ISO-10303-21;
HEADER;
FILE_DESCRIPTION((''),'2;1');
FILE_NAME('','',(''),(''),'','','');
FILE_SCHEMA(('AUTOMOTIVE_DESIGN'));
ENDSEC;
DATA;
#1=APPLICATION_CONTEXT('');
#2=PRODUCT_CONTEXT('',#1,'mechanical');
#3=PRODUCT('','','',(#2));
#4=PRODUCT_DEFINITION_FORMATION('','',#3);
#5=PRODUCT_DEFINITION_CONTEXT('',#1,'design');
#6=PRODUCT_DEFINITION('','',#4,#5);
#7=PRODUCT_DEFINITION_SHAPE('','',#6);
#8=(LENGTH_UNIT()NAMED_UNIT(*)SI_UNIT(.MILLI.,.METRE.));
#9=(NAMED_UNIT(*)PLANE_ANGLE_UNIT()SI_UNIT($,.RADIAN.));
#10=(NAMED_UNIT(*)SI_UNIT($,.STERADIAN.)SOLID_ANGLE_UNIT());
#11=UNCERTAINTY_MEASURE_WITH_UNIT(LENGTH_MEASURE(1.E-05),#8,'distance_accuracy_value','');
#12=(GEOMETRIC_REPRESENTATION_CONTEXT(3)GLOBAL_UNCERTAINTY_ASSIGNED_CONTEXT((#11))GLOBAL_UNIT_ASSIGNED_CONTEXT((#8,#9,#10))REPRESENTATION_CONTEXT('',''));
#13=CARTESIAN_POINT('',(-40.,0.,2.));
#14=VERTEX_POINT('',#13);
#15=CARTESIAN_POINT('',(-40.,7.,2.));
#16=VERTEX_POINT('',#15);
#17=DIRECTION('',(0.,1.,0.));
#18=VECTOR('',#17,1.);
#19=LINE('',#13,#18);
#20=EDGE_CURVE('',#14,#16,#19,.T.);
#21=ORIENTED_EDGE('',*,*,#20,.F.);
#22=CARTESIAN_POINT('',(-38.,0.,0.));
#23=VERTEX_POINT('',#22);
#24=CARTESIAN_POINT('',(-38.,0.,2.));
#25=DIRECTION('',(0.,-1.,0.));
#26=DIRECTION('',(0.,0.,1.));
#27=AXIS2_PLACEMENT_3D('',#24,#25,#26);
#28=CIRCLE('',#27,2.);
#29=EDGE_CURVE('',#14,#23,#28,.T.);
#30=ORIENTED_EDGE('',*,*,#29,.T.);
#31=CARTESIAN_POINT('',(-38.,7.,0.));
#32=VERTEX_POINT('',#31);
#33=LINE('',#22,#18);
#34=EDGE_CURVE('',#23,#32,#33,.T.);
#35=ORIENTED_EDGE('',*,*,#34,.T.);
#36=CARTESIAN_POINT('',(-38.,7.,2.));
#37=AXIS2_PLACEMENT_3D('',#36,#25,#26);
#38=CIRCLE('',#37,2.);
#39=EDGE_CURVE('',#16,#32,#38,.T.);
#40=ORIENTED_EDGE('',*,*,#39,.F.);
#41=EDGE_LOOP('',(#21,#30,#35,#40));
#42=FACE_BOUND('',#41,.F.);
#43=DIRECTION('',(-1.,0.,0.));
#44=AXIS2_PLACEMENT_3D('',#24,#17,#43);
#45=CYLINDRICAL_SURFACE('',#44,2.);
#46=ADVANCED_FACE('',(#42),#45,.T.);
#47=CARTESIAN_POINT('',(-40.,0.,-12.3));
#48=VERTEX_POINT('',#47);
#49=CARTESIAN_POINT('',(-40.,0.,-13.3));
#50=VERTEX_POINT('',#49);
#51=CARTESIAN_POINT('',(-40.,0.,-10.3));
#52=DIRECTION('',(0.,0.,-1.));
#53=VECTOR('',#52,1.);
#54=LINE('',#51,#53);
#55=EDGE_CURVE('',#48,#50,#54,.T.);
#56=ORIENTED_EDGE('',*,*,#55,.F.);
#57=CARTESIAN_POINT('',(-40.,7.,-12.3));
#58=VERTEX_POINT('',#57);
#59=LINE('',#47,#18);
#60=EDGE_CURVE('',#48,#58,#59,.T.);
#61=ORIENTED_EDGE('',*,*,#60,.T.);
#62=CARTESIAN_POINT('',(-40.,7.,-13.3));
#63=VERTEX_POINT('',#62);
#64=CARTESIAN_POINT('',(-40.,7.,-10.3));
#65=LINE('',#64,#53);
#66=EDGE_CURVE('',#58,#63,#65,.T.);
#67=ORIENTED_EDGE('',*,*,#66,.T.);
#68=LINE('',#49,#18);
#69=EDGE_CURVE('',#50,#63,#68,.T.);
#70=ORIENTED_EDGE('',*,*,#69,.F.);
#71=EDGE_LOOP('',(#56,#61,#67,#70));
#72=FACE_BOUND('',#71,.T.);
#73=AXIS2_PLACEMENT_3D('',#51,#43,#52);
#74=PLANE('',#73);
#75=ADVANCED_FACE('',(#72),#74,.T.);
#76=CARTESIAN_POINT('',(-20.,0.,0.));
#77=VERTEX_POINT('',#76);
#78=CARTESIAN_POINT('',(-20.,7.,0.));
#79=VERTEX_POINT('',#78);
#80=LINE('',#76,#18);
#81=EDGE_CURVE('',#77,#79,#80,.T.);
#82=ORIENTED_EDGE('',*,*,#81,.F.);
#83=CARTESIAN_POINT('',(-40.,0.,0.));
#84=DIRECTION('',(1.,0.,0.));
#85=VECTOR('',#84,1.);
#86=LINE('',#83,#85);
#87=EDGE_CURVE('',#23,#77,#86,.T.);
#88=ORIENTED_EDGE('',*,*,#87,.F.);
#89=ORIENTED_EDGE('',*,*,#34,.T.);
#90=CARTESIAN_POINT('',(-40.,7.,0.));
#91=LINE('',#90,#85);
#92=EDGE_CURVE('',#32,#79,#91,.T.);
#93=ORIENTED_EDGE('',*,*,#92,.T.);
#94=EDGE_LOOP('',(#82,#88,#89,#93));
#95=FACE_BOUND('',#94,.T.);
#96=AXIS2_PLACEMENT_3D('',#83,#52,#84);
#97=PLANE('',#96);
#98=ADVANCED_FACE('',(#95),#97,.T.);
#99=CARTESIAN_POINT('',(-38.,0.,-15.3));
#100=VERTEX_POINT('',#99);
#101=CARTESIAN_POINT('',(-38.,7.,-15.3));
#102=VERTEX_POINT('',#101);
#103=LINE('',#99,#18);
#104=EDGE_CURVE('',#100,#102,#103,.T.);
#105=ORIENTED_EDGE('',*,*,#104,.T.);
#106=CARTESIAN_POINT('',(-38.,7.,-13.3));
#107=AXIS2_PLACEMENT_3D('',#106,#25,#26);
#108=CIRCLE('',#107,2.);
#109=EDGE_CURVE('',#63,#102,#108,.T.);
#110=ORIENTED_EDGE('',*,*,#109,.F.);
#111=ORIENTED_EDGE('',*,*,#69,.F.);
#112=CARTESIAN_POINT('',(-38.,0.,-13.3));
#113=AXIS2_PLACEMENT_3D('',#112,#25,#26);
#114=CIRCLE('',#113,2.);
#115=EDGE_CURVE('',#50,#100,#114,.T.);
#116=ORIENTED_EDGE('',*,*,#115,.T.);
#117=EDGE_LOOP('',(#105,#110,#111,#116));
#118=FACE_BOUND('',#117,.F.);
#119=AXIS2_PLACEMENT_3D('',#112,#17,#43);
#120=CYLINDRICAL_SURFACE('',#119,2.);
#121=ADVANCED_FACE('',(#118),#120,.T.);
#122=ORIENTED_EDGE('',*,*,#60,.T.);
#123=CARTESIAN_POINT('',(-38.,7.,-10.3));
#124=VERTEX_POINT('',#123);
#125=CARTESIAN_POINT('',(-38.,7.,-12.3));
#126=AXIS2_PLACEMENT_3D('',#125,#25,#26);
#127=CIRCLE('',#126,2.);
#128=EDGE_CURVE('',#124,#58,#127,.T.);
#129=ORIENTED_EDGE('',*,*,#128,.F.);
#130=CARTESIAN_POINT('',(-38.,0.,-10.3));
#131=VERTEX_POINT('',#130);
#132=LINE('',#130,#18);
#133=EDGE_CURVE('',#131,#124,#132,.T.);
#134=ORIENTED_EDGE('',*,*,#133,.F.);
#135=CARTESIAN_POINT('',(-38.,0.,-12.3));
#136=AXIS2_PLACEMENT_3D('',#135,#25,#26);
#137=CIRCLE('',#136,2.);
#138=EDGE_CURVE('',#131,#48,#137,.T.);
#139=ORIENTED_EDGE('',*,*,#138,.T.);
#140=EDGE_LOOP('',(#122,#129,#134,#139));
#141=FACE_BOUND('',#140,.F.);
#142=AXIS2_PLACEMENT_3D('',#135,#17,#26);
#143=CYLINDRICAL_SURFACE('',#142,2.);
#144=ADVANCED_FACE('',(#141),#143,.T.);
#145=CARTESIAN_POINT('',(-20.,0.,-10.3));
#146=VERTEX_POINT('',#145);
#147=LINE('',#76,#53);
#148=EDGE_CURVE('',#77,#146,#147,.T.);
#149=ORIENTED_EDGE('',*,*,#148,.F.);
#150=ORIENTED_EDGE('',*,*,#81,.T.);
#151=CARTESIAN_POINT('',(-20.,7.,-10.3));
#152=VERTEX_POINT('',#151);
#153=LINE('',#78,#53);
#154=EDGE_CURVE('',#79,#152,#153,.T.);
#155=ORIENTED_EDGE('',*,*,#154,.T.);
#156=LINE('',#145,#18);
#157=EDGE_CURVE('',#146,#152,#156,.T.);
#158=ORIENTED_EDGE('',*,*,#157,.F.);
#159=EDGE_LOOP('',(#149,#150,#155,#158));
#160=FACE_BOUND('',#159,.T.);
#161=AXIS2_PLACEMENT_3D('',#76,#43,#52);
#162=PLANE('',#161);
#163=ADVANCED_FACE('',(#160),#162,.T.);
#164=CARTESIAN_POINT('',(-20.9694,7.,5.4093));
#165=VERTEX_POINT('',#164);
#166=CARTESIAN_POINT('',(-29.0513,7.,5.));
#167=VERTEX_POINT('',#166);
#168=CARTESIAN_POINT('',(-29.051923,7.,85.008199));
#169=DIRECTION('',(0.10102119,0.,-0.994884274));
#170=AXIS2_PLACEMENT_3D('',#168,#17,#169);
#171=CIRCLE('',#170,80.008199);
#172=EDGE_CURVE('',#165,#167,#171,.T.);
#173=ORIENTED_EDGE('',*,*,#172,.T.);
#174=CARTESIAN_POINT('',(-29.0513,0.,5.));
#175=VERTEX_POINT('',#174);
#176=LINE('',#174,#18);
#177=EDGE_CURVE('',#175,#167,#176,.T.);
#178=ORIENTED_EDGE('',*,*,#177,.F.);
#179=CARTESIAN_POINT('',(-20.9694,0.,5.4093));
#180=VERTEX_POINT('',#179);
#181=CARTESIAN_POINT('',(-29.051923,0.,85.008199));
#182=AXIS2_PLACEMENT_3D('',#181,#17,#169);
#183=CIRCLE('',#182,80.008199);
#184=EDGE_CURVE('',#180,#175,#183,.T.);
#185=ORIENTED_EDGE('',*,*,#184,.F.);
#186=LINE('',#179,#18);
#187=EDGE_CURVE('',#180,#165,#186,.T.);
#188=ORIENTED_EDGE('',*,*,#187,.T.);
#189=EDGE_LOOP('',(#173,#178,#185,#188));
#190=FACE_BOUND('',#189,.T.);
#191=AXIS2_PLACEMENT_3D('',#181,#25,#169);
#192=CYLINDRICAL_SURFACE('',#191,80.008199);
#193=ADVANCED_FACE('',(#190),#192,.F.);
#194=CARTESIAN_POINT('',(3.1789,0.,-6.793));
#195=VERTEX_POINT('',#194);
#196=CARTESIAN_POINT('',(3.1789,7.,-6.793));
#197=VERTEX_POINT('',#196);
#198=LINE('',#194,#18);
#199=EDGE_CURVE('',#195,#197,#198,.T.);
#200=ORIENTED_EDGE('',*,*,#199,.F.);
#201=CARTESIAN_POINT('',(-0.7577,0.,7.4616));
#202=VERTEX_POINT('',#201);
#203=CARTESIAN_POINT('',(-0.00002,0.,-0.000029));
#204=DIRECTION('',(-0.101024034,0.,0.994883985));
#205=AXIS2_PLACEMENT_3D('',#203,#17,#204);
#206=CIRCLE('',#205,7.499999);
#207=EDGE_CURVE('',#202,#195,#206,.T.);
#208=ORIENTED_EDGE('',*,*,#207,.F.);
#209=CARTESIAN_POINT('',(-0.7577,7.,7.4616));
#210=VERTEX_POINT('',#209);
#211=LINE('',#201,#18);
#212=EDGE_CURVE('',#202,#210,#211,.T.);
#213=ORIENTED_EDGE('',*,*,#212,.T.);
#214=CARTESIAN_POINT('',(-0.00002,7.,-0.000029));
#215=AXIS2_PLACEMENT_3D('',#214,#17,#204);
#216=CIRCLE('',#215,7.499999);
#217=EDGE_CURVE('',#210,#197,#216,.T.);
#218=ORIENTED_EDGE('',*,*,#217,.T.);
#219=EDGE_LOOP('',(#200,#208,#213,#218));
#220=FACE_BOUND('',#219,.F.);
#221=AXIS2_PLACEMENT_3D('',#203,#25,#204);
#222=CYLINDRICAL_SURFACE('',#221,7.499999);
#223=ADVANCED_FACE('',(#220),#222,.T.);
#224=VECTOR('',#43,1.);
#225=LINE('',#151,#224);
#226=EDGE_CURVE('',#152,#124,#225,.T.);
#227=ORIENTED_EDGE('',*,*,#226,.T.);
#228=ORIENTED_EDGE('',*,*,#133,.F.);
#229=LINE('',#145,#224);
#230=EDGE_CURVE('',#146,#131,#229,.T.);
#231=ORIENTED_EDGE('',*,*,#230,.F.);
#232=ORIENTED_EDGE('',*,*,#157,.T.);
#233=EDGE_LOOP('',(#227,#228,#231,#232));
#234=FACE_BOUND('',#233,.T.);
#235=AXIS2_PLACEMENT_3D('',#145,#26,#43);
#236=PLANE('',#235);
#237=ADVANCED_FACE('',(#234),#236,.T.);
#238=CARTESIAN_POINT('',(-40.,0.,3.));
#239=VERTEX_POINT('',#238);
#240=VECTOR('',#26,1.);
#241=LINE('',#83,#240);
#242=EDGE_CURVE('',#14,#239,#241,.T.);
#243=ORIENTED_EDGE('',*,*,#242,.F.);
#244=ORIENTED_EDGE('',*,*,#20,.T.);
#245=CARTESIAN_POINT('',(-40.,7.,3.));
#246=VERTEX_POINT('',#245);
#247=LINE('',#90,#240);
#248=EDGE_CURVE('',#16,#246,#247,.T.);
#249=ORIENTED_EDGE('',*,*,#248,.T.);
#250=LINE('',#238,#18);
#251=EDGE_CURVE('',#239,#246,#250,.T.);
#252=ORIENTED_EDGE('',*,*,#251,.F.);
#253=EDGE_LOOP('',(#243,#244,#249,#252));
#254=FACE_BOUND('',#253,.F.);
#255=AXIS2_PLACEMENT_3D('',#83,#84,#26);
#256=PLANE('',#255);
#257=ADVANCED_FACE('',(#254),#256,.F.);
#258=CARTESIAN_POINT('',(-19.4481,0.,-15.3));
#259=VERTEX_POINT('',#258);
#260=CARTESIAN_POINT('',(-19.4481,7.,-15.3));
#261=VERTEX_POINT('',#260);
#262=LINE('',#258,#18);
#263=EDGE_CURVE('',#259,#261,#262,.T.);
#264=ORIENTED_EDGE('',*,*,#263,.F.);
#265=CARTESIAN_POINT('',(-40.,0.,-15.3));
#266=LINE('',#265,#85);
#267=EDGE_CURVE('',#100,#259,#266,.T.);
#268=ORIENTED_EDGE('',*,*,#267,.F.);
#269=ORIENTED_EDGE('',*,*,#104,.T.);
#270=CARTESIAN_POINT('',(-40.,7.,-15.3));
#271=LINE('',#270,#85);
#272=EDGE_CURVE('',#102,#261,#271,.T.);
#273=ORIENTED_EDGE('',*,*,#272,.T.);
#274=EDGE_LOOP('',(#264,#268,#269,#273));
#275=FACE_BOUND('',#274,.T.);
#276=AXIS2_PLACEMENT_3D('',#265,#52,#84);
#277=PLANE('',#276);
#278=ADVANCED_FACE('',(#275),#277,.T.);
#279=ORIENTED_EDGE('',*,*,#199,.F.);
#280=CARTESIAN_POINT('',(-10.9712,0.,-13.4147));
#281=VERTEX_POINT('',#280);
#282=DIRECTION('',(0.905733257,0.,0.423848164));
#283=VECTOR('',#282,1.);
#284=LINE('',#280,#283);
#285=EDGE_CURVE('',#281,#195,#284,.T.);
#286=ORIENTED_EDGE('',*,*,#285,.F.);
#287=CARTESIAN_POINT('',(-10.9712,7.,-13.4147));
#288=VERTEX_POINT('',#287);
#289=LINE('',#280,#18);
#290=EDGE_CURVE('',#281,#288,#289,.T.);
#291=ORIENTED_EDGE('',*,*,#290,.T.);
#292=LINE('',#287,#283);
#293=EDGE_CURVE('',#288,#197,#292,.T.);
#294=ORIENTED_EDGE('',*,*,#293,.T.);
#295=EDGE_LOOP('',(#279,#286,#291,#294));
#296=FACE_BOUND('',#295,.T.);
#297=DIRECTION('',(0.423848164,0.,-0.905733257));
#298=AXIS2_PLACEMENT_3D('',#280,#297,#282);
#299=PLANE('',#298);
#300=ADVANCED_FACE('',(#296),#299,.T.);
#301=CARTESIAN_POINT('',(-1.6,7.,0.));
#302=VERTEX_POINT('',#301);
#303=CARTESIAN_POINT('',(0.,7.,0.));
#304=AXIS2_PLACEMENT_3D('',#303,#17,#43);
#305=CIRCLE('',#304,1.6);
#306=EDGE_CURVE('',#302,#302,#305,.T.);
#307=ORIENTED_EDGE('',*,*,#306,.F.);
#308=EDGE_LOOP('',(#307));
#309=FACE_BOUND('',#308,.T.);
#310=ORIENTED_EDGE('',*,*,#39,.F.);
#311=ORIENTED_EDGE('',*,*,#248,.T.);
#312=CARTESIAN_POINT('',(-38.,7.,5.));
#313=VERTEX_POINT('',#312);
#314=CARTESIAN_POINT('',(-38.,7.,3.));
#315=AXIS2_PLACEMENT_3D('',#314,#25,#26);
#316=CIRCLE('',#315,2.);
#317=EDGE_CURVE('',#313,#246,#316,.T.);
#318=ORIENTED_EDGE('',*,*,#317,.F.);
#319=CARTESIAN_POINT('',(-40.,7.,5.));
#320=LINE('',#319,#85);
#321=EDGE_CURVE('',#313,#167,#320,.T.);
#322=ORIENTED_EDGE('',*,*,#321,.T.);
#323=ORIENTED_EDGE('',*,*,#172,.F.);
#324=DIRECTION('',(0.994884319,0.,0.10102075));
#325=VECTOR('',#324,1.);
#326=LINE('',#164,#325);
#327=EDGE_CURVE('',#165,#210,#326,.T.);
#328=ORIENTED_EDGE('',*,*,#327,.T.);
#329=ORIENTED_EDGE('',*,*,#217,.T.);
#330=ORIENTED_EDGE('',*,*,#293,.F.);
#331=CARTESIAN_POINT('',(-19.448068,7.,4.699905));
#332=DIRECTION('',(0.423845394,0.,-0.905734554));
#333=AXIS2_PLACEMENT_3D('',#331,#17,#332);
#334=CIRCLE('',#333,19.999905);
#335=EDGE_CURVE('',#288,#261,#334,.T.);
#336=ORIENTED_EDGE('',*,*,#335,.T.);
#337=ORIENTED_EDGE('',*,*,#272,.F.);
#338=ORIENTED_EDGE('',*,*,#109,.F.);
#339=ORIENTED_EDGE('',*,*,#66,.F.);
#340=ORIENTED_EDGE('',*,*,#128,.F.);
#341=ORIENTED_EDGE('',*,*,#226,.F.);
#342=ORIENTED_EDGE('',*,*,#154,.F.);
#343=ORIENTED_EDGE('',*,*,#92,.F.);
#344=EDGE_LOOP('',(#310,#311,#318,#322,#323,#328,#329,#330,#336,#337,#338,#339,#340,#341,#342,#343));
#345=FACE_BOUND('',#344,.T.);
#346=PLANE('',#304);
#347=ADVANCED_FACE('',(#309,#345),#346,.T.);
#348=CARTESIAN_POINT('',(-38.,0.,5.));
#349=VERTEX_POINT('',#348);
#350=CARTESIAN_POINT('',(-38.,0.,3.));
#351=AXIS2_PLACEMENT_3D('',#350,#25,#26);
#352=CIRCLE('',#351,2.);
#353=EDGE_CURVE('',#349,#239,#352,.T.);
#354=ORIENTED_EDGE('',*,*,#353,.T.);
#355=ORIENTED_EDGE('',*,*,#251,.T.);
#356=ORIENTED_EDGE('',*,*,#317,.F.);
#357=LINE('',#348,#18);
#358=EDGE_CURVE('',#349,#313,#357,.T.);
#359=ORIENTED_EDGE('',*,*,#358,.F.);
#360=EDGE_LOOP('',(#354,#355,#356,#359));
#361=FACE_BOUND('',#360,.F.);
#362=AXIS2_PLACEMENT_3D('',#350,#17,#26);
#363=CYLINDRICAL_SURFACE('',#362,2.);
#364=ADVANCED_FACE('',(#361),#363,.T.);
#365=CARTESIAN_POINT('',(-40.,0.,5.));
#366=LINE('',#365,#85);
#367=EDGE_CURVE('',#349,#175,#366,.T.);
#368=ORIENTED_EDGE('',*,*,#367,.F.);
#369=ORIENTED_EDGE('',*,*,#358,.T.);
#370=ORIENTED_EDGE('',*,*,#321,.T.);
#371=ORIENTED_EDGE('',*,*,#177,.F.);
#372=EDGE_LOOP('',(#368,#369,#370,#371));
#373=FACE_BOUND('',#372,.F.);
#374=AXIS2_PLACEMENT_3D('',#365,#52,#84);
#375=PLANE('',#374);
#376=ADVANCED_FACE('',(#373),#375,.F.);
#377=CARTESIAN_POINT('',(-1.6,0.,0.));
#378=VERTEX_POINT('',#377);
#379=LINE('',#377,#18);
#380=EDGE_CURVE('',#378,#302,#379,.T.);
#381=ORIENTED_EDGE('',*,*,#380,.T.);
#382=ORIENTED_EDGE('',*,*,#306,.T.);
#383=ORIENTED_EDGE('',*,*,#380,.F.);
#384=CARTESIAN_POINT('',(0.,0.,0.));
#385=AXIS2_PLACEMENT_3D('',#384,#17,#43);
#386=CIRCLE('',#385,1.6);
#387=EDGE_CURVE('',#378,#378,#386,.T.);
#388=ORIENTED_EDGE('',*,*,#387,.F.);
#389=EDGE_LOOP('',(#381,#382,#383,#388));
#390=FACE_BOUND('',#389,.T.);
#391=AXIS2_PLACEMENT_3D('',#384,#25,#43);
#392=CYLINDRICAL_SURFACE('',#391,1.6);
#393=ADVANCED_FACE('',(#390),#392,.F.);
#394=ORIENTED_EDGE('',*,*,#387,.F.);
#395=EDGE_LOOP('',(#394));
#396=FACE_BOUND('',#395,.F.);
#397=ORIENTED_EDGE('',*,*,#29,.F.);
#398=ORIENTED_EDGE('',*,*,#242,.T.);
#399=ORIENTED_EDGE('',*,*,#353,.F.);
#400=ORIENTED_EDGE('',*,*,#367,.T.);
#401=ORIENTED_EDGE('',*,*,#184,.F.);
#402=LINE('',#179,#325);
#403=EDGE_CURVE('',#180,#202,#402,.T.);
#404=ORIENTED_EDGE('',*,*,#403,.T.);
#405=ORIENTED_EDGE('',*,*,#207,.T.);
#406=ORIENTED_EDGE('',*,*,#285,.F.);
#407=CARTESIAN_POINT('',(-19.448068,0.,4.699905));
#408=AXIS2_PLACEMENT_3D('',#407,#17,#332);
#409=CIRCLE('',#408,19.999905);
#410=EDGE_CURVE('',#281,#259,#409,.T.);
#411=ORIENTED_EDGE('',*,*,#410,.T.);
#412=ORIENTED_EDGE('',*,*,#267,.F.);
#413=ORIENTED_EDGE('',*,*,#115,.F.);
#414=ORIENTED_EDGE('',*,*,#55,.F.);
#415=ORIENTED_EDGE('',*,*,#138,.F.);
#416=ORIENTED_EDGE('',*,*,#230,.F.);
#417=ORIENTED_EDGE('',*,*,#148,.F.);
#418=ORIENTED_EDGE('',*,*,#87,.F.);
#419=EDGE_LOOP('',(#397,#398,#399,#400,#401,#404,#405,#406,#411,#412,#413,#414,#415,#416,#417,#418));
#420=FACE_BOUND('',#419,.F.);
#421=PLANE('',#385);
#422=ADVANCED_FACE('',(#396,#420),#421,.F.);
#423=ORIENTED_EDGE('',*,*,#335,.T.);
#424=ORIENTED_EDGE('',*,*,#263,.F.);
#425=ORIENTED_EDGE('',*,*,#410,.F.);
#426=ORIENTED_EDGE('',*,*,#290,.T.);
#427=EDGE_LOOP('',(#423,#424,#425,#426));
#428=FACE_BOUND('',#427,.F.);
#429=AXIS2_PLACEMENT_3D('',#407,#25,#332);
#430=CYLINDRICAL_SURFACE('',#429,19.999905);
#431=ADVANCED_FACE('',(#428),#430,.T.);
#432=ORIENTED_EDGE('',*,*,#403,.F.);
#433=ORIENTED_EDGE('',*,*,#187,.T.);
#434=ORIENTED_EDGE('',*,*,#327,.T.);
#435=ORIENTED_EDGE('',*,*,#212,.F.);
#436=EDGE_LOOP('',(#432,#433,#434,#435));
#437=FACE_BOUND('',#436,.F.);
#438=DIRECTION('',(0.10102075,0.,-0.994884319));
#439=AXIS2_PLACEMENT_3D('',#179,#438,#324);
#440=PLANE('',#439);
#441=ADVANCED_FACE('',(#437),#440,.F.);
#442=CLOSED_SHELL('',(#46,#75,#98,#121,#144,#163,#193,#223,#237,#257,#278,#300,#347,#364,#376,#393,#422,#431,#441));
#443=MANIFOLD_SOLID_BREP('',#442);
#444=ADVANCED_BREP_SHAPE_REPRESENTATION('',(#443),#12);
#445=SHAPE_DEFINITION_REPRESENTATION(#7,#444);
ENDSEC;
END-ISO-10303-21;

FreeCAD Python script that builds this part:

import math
import FreeCAD as App
import Part
import Sketcher


def edges_at(feature, points):
    """Names of the edges that pass closest to the given points."""
    edges = feature.Shape.Edges
    near = lambda p: min(range(len(edges)), key=lambda i: edges[i].distToShape(Part.Vertex(*p))[0])
    return sorted({f"Edge{near(p) + 1}" for p in points})

doc = App.newDocument("Part")
body = doc.addObject("PartDesign::Body", "Body")

# Sketch on XZ plane
sketch1 = doc.addObject("Sketcher::SketchObject", "Sketch")
body.addObject(sketch1)
sketch1.AttachmentSupport = (doc.XZ_Plane, [""])
sketch1.MapMode = "FlatFace"
sketch1.addGeometry([
    Part.LineSegment(App.Vector(-21, 5.4, 0), App.Vector(-0.8, 7.5, 0)),  # 0
    Part.ArcOfCircle(Part.Circle(App.Vector(0, 0, 0), App.Vector(0, 0, 1), 7.5), math.radians(-65), math.radians(96)),  # 1
    Part.LineSegment(App.Vector(3.2, -6.8, 0), App.Vector(-11, -13.4, 0)),  # 2
    Part.ArcOfCircle(Part.Circle(App.Vector(-19.4, 4.7, 0), App.Vector(0, 0, 1), 20), math.radians(-90), math.radians(-65)),  # 3
    Part.LineSegment(App.Vector(-19.4, -15.3, 0), App.Vector(-40, -15.3, 0)),  # 4
    Part.LineSegment(App.Vector(-40, -15.3, 0), App.Vector(-40, -10.3, 0)),  # 5
    Part.LineSegment(App.Vector(-40, -10.3, 0), App.Vector(-20, -10.3, 0)),  # 6
    Part.LineSegment(App.Vector(-20, -10.3, 0), App.Vector(-20, 0, 0)),  # 7
    Part.LineSegment(App.Vector(-20, 0, 0), App.Vector(-40, 0, 0)),  # 8
    Part.LineSegment(App.Vector(-40, 0, 0), App.Vector(-40, 5, 0)),  # 9
    Part.LineSegment(App.Vector(-40, 5, 0), App.Vector(-29.1, 5, 0)),  # 10
    Part.ArcOfCircle(Part.Circle(App.Vector(-29.1, 85, 0), App.Vector(0, 0, 1), 80), math.radians(-90), math.radians(-84.2)),  # 11
    Part.Circle(App.Vector(0, 0, 0), App.Vector(0, 0, 1), 1.6),  # 12
], False)
sketch1.addConstraint([
    Sketcher.Constraint("Tangent", 0, 2, 1, 2),
    Sketcher.Constraint("Tangent", 1, 1, 2, 1),
    Sketcher.Constraint("Tangent", 2, 2, 3, 2),
    Sketcher.Constraint("Tangent", 3, 1, 4, 1),
    Sketcher.Constraint("Coincident", 4, 2, 5, 1),
    Sketcher.Constraint("Coincident", 5, 2, 6, 1),
    Sketcher.Constraint("Coincident", 6, 2, 7, 1),
    Sketcher.Constraint("Coincident", 7, 2, 8, 1),
    Sketcher.Constraint("Coincident", 8, 2, 9, 1),
    Sketcher.Constraint("Coincident", 9, 2, 10, 1),
    Sketcher.Constraint("Tangent", 10, 2, 11, 1),
    Sketcher.Constraint("Tangent", 11, 2, 0, 1),
    Sketcher.Constraint("Horizontal", 4),
    Sketcher.Constraint("Vertical", 5),
    Sketcher.Constraint("Horizontal", 6),
    Sketcher.Constraint("Vertical", 7),
    Sketcher.Constraint("Horizontal", 8),
    Sketcher.Constraint("Vertical", 9),
    Sketcher.Constraint("Horizontal", 10),
    Sketcher.Constraint("Coincident", 1, 3, -1, 1),
    Sketcher.Constraint("Coincident", 12, 3, -1, 1),
    Sketcher.Constraint("PointOnObject", 7, 2, -1),
    Sketcher.Constraint("Vertical", 5, 2, 8, 2),
    Sketcher.Constraint("Equal", 5, 9),
    Sketcher.Constraint("Radius", 3, 20.0),
    Sketcher.Constraint("Diameter", 12, 3.2),
    Sketcher.Constraint("Radius", 1, 7.5),
    Sketcher.Constraint("DistanceX", 6, 1, 6, 2, 20.0),
    Sketcher.Constraint("DistanceY", 5, 1, 5, 2, 5.0),
    Sketcher.Constraint("DistanceY", 7, 1, 7, 2, 10.3),
    Sketcher.Constraint("DistanceX", 6, 2, -1, 1, 20.0),
    Sketcher.Constraint("Radius", 11, 80.0082),
    Sketcher.Constraint("DistanceX", 4, 2, 4, 1, 20.552),
    Sketcher.Constraint("DistanceX", 10, 1, 10, 2, 10.9487),
])
pad1 = doc.addObject("PartDesign::Pad", "Pad")
body.addObject(pad1)
pad1.Profile = sketch1
pad1.Length = 7
pad1.Reversed = True
doc.recompute()

fillet = doc.addObject("PartDesign::Fillet", "Fillet")
body.addObject(fillet)
fillet.Base = (pad1, edges_at(pad1, [
    (-40, 3.5, 5),
    (-40, 3.5, 0),
    (-40, 3.5, -10.3),
    (-40, 3.5, -15.3),
]))
fillet.Radius = 2

doc.recompute()
